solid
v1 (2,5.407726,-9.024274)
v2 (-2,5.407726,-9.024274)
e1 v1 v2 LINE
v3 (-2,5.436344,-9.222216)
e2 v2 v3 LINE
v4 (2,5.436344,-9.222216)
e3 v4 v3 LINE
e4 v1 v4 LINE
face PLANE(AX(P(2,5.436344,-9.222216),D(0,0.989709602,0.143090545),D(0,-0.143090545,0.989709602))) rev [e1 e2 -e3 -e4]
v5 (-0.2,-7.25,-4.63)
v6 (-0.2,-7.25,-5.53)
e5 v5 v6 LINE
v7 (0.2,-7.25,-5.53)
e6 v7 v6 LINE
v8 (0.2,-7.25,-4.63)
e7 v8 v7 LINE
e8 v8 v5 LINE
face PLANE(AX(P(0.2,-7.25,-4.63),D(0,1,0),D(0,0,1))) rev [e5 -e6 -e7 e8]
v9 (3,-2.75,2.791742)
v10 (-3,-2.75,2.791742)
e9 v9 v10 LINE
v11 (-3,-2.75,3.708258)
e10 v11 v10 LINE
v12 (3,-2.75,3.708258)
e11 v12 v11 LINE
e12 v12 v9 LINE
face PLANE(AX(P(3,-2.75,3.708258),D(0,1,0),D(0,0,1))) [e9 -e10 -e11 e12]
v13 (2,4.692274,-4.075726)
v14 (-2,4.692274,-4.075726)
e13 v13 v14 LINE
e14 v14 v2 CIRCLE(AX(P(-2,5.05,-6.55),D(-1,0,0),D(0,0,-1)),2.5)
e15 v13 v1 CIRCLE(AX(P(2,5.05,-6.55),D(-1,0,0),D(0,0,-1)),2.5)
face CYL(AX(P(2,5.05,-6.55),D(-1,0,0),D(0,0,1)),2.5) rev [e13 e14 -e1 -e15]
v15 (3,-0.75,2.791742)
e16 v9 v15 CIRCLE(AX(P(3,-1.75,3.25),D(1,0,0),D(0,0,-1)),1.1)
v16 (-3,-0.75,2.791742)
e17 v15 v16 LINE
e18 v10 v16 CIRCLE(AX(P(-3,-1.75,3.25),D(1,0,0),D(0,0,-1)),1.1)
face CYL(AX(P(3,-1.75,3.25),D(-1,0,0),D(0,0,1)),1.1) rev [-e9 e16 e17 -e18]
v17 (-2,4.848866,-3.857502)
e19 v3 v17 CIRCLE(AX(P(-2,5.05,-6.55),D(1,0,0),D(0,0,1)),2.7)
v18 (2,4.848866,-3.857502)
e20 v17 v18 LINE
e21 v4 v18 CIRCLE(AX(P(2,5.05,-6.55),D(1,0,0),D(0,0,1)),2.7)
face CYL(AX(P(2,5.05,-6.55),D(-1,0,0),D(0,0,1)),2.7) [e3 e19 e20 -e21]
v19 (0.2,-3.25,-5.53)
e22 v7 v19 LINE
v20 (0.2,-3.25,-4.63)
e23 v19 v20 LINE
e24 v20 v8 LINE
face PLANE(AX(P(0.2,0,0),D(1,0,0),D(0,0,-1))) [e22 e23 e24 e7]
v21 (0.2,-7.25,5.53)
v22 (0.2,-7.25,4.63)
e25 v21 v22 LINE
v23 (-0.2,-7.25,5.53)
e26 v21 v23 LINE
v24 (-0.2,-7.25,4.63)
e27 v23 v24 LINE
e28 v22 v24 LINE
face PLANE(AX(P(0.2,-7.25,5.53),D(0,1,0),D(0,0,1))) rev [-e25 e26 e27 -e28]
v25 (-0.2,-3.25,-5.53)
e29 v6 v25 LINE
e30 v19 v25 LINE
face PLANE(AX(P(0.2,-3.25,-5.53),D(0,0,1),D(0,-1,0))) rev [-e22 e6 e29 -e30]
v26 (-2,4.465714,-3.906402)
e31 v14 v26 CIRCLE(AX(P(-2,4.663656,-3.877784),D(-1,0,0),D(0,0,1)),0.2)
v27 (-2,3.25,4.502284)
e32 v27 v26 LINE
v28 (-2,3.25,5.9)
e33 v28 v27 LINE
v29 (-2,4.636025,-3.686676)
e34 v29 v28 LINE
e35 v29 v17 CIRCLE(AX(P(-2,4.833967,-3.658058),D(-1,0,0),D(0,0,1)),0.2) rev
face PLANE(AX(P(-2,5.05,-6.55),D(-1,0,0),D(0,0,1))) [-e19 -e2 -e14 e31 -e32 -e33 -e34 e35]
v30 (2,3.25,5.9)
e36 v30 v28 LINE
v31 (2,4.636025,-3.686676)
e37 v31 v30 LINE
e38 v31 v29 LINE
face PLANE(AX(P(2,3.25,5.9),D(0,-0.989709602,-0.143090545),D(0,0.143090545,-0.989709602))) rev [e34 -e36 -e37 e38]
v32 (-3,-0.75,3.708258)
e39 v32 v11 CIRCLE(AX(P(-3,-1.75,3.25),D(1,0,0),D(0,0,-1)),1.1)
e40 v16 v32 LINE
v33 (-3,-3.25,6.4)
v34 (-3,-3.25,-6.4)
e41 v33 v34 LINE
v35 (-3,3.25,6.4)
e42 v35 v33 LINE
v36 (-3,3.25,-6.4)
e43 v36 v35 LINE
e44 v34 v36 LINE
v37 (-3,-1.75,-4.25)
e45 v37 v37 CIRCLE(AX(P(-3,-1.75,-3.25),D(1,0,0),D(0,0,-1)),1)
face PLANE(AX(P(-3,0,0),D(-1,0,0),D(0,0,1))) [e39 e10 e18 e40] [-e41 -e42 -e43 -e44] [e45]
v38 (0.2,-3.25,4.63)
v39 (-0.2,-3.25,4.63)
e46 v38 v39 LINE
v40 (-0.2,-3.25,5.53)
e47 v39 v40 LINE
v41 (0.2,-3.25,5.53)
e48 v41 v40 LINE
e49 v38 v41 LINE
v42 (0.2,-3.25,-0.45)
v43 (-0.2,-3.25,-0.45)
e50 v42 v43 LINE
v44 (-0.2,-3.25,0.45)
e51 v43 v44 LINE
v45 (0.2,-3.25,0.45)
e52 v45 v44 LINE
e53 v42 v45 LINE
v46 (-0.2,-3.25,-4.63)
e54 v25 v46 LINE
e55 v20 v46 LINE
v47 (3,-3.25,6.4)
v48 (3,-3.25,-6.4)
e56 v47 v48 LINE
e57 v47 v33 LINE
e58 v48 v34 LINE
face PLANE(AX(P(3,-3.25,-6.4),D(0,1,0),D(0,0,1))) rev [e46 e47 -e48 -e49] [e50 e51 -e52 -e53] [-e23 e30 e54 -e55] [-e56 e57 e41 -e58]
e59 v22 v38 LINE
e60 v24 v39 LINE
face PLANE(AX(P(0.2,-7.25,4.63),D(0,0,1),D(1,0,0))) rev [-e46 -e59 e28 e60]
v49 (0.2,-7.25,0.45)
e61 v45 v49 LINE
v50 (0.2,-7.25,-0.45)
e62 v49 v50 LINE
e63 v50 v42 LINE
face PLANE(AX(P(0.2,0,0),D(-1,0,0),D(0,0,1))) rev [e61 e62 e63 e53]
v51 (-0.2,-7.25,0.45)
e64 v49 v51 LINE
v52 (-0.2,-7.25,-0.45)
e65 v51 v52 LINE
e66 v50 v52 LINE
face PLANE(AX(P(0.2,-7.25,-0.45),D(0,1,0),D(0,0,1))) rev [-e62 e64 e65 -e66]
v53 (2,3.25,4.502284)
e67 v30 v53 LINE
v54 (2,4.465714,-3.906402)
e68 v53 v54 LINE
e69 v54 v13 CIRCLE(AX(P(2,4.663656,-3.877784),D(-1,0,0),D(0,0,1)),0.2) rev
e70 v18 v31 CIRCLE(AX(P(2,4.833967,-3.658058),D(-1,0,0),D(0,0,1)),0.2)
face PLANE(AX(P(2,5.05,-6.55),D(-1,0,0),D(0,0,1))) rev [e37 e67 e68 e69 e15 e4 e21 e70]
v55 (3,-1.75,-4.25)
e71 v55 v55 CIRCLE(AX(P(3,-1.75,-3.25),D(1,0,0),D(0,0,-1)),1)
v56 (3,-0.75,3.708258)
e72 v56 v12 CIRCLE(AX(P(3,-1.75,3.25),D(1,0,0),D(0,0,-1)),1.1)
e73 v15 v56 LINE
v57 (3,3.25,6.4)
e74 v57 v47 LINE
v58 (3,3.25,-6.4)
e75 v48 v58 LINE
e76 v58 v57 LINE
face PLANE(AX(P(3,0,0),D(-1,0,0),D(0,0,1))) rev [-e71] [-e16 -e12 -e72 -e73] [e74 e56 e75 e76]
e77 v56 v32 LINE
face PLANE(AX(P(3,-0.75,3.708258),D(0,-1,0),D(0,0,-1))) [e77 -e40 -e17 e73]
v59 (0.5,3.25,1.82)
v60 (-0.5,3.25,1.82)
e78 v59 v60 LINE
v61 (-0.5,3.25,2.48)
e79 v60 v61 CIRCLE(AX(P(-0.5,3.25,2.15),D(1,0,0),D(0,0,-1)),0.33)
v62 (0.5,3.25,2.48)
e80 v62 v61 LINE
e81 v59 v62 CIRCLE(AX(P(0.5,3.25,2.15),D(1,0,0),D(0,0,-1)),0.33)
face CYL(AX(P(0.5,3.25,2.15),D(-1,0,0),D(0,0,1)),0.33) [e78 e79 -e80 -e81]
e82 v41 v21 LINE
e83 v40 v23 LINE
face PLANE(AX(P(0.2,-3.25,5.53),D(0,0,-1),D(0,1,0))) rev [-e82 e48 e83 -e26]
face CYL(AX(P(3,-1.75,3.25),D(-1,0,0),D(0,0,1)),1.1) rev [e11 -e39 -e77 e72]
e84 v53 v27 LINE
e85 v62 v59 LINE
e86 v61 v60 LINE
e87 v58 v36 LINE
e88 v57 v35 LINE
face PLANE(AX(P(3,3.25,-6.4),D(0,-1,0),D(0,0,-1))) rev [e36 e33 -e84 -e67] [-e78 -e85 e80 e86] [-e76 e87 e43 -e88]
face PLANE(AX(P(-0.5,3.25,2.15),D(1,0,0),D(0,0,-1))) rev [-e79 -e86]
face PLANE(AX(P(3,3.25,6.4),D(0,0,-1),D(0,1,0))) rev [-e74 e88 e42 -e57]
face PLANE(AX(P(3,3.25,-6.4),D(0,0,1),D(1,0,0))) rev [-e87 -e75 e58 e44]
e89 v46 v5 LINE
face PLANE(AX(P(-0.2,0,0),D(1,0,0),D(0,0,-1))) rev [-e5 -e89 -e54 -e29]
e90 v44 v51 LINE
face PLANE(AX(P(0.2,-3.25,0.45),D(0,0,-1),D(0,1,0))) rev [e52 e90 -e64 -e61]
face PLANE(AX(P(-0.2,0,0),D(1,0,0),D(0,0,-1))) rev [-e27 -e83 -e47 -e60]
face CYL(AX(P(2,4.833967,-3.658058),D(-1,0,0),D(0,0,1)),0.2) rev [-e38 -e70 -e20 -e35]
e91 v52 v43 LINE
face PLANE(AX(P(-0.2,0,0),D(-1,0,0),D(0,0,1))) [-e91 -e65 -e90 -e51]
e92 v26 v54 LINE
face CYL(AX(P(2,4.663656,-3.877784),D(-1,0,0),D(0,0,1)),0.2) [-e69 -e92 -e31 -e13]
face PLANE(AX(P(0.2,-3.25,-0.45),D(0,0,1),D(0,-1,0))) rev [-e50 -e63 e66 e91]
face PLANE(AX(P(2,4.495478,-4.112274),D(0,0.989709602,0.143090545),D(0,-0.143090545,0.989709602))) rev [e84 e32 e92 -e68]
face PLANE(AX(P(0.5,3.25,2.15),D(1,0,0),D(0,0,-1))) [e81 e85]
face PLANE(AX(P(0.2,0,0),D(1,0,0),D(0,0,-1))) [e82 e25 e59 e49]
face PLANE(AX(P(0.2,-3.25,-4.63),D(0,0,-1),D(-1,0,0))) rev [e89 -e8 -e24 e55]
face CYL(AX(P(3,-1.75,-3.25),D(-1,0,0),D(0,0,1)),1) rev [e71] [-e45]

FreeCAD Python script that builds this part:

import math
import FreeCAD as App
import Part
import Sketcher

V = App.Vector
Q = App.Units.Quantity


def edges_at(feature, points):
    """Names of the edges that pass closest to the given points."""
    edges = feature.Shape.Edges
    near = lambda p: min(range(len(edges)), key=lambda i: edges[i].distToShape(Part.Vertex(*p))[0])
    return sorted({f"Edge{near(p) + 1}" for p in points})


def add_polygon(sketch, points):
    """Adds a closed chain of lines whose ends are joined by coincident constraints."""
    first, n = sketch.GeometryCount, len(points)
    for a, b in zip(points, points[1:] + points[:1]):
        sketch.addGeometry(Part.LineSegment(App.Vector(*a, 0), App.Vector(*b, 0)), False)
    for i in range(n):
        sketch.addConstraint(Sketcher.Constraint("Coincident", first + i, 2, first + (i + 1) % n, 1))

doc = App.newDocument("Part")
params = doc.addObject("Spreadsheet::Sheet", "Params")
for row, (alias, value) in enumerate([
    ("sketch1_diameter", "2 mm"),
    ("sketch1_radius", "1.1 mm"),
    ("sketch1_width", "6.5 mm"),
    ("sketch1_height", "12.8 mm"),
    ("sketch1_width2", "1 mm"),
    ("pad1_length", "6 mm"),
    ("sketch2_width", "4 mm"),
    ("sketch2_height", "0.9 mm"),
    ("pad2_length", "0.4 mm"),
    ("sketch3_radius", "2.5 mm"),
    ("sketch3_radius2", "2.7 mm"),
    ("pad3_length", "4 mm"),
    ("fillet_radius", "0.2 mm"),
    ("sketch4_radius", "0.33 mm"),
    ("pad4_length", "1 mm"),
], start=1):
    params.set(f"A{row}", alias)
    params.set(f"B{row}", "=" + value)
    params.setAlias(f"B{row}", alias)

body = doc.addObject("PartDesign::Body", "Body")

# Sketch on YZ plane
sketch1 = doc.addObject("Sketcher::SketchObject", "Sketch")
body.addObject(sketch1)
sketch1.AttachmentSupport = (doc.YZ_Plane, [""])
sketch1.MapMode = "FlatFace"
add_polygon(sketch1, [(3.25, 6.4), (-3.25, 6.4), (-3.25, -6.4), (3.25, -6.4)])  # lines 0-3
sketch1.addGeometry(Part.ArcOfCircle(Part.Circle(V(-1.75, 3.25, 0), V(0, 0, 1), 1.1), math.radians(24.619977), math.radians(155.380023)), False)  # 4
sketch1.addGeometry(Part.LineSegment(V(-0.75, 3.708258, 0), V(-0.75, 2.791742, 0)), False)  # 5
sketch1.addGeometry(Part.ArcOfCircle(Part.Circle(V(-1.75, 3.25, 0), V(0, 0, 1), 1.1), math.radians(-155.380023), math.radians(-24.619977)), False)  # 6
sketch1.addGeometry(Part.LineSegment(V(-2.75, 2.791742, 0), V(-2.75, 3.708258, 0)), False)  # 7
sketch1.addGeometry(Part.Circle(V(-1.75, -3.25, 0), V(0, 0, 1), 1), False)  # 8
sketch1.addConstraint(Sketcher.Constraint("Coincident", 4, 1, 5, 1))
sketch1.addConstraint(Sketcher.Constraint("Coincident", 5, 2, 6, 2))
sketch1.addConstraint(Sketcher.Constraint("Coincident", 6, 1, 7, 1))
sketch1.addConstraint(Sketcher.Constraint("Coincident", 7, 2, 4, 2))
sketch1.addConstraint(Sketcher.Constraint("Horizontal", 0))
sketch1.addConstraint(Sketcher.Constraint("Vertical", 1))
sketch1.addConstraint(Sketcher.Constraint("Horizontal", 2))
sketch1.addConstraint(Sketcher.Constraint("Vertical", 3))
sketch1.addConstraint(Sketcher.Constraint("Vertical", 5))
sketch1.addConstraint(Sketcher.Constraint("Vertical", 7))
sketch1.addConstraint(Sketcher.Constraint("Coincident", 6, 3, 4, 3))
sketch1.addConstraint(Sketcher.Constraint("Equal", 4, 6))
sketch1.addConstraint(Sketcher.Constraint("Symmetric", 0, 2, 2, 2, -1, 1))
sketch1.addConstraint(Sketcher.Constraint("Symmetric", 4, 3, 8, 3, -1))
sketch1.addConstraint(Sketcher.Constraint("Horizontal", 5, 2, 6, 1))
sketch1.addConstraint(Sketcher.Constraint("Diameter", 8, Q("2 mm")))
sketch1.addConstraint(Sketcher.Constraint("Radius", 4, Q("1.1 mm")))
sketch1.addConstraint(Sketcher.Constraint("DistanceX", 0, 2, 0, 1, Q("6.5 mm")))
sketch1.addConstraint(Sketcher.Constraint("DistanceY", 1, 2, 1, 1, Q("12.8 mm")))
sketch1.addConstraint(Sketcher.Constraint("DistanceX", 8, 3, 2, 2, Q("5 mm")))
sketch1.addConstraint(Sketcher.Constraint("DistanceX", 4, 3, 4, 1, Q("1 mm")))
sketch1.addConstraint(Sketcher.Constraint("DistanceY", 8, 3, 4, 3, Q("6.5 mm")))
sketch1.setExpression("Constraints[19]", "Params.sketch1_diameter")
sketch1.setExpression("Constraints[20]", "Params.sketch1_radius")
sketch1.setExpression("Constraints[21]", "Params.sketch1_width")
sketch1.setExpression("Constraints[22]", "Params.sketch1_height")
sketch1.setExpression("Constraints[24]", "Params.sketch1_width2")
pad1 = doc.addObject("PartDesign::Pad", "Pad")
body.addObject(pad1)
pad1.Profile = sketch1
pad1.setExpression("Length", "Params.pad1_length")
pad1.Midplane = True

# Sketch on YZ plane
sketch2 = doc.addObject("Sketcher::SketchObject", "Sketch001")
body.addObject(sketch2)
sketch2.AttachmentSupport = (doc.YZ_Plane, [""])
sketch2.MapMode = "FlatFace"
add_polygon(sketch2, [(-3.25, 5.53), (-7.25, 5.53), (-7.25, 4.63), (-3.25, 4.63)])  # lines 0-3
add_polygon(sketch2, [(-3.25, 0.45), (-7.25, 0.45), (-7.25, -0.45), (-3.25, -0.45)])  # lines 4-7
add_polygon(sketch2, [(-3.25, -4.63), (-7.25, -4.63), (-7.25, -5.53), (-3.25, -5.53)])  # lines 8-11
sketch2.addConstraint(Sketcher.Constraint("Horizontal", 0))
sketch2.addConstraint(Sketcher.Constraint("Vertical", 1))
sketch2.addConstraint(Sketcher.Constraint("Horizontal", 2))
sketch2.addConstraint(Sketcher.Constraint("Vertical", 3))
sketch2.addConstraint(Sketcher.Constraint("Horizontal", 4))
sketch2.addConstraint(Sketcher.Constraint("Vertical", 5))
sketch2.addConstraint(Sketcher.Constraint("Horizontal", 6))
sketch2.addConstraint(Sketcher.Constraint("Vertical", 7))
sketch2.addConstraint(Sketcher.Constraint("Horizontal", 8))
sketch2.addConstraint(Sketcher.Constraint("Vertical", 9))
sketch2.addConstraint(Sketcher.Constraint("Horizontal", 10))
sketch2.addConstraint(Sketcher.Constraint("Vertical", 11))
sketch2.addConstraint(Sketcher.Constraint("Symmetric", 1, 2, 8, 2, -1))
sketch2.addConstraint(Sketcher.Constraint("Symmetric", 3, 2, 10, 2, -1))
sketch2.addConstraint(Sketcher.Constraint("Vertical", 1, 2, 4, 2))
sketch2.addConstraint(Sketcher.Constraint("Vertical", 3, 2, 6, 2))
sketch2.addConstraint(Sketcher.Constraint("Equal", 3, 5))
sketch2.addConstraint(Sketcher.Constraint("DistanceX", 0, 2, 0, 1, Q("4 mm")))
sketch2.addConstraint(Sketcher.Constraint("DistanceY", 1, 2, 1, 1, Q("0.9 mm")))
sketch2.addConstraint(Sketcher.Constraint("DistanceX", 0, 2, -1, 1, Q("7.25 mm")))
sketch2.addConstraint(Sketcher.Constraint("DistanceY", -1, 1, 0, 2, Q("5.53 mm")))
sketch2.addConstraint(Sketcher.Constraint("DistanceY", -1, 1, 4, 2, Q("0.45 mm")))
sketch2.setExpression("Constraints[29]", "Params.sketch2_width")
sketch2.setExpression("Constraints[30]", "Params.sketch2_height")
pad2 = doc.addObject("PartDesign::Pad", "Pad001")
body.addObject(pad2)
pad2.Profile = sketch2
pad2.setExpression("Length", "Params.pad2_length")
pad2.Midplane = True

# Sketch on YZ plane
sketch3 = doc.addObject("Sketcher::SketchObject", "Sketch002")
body.addObject(sketch3)
sketch3.AttachmentSupport = (doc.YZ_Plane, [""])
sketch3.MapMode = "FlatFace"
sketch3.addGeometry(Part.LineSegment(V(4.663656, -3.877784, 0), V(3.25, 5.9, 0)), False)
sketch3.addGeometry(Part.LineSegment(V(3.25, 5.9, 0), V(3.25, 4.502284, 0)), False)
sketch3.addGeometry(Part.LineSegment(V(3.25, 4.502284, 0), V(4.495478, -4.112274, 0)), False)
sketch3.addGeometry(Part.ArcOfCircle(Part.Circle(V(5.05, -6.55, 0), V(0, 0, 1), 2.5), math.radians(-81.773278), math.radians(102.815288)), False)
sketch3.addGeometry(Part.LineSegment(V(5.407726, -9.024274, 0), V(5.436344, -9.222216, 0)), False)
sketch3.addGeometry(Part.ArcOfCircle(Part.Circle(V(5.05, -6.55, 0), V(0, 0, 1), 2.7), math.radians(-81.773278), math.radians(98.226722)), False)
sketch3.addConstraint(Sketcher.Constraint("Coincident", 0, 2, 1, 1))
sketch3.addConstraint(Sketcher.Constraint("Coincident", 1, 2, 2, 1))
sketch3.addConstraint(Sketcher.Constraint("Coincident", 2, 2, 3, 2))
sketch3.addConstraint(Sketcher.Constraint("Coincident", 3, 1, 4, 1))
sketch3.addConstraint(Sketcher.Constraint("Coincident", 4, 2, 5, 1))
sketch3.addConstraint(Sketcher.Constraint("Coincident", 5, 2, 0, 1))
sketch3.addConstraint(Sketcher.Constraint("Vertical", 1))
sketch3.addConstraint(Sketcher.Constraint("Coincident", 5, 3, 3, 3))
sketch3.addConstraint(Sketcher.Constraint("Parallel", 0, 2))
sketch3.addConstraint(Sketcher.Constraint("Parallel", 2, 4))
sketch3.addConstraint(Sketcher.Constraint("Radius", 3, Q("2.5 mm")))
sketch3.addConstraint(Sketcher.Constraint("Radius", 5, Q("2.7 mm")))
sketch3.addConstraint(Sketcher.Constraint("DistanceY", -1, 1, 0, 2, Q("5.9 mm")))
sketch3.addConstraint(Sketcher.Constraint("DistanceX", 0, 2, 3, 3, Q("1.8 mm")))
sketch3.addConstraint(Sketcher.Constraint("DistanceX", -1, 1, 3, 3, Q("5.05 mm")))
sketch3.addConstraint(Sketcher.Constraint("DistanceY", 3, 3, -1, 1, Q("6.55 mm")))
sketch3.addConstraint(Sketcher.Constraint("DistanceY", 3, 1, 2, 2, Q("4.912 mm")))
sketch3.addConstraint(Sketcher.Constraint("DistanceY", 4, 2, 1, 2, Q("13.7245 mm")))
sketch3.addConstraint(Sketcher.Constraint("DistanceY", 1, 2, 1, 1, Q("1.397716 mm")))
sketch3.setExpression("Constraints[10]", "Params.sketch3_radius")
sketch3.setExpression("Constraints[11]", "Params.sketch3_radius2")
pad3 = doc.addObject("PartDesign::Pad", "Pad002")
body.addObject(pad3)
pad3.Profile = sketch3
pad3.setExpression("Length", "Params.pad3_length")
pad3.Midplane = True
doc.recompute()

fillet = doc.addObject("PartDesign::Fillet", "Fillet")
body.addObject(fillet)
fillet.Base = (pad3, edges_at(pad3, [(0, 4.495, -4.112), (0, 4.664, -3.878)]))
fillet.setExpression("Radius", "Params.fillet_radius")

# Sketch on YZ plane
sketch4 = doc.addObject("Sketcher::SketchObject", "Sketch003")
body.addObject(sketch4)
sketch4.AttachmentSupport = (doc.YZ_Plane, [""])
sketch4.MapMode = "FlatFace"
sketch4.addGeometry(Part.LineSegment(V(3.25, 2.48, 0), V(3.25, 1.82, 0)), False)
sketch4.addGeometry(Part.ArcOfCircle(Part.Circle(V(3.25, 2.15, 0), V(0, 0, 1), 0.33), math.radians(-90), math.radians(90)), False)
sketch4.addConstraint(Sketcher.Constraint("Coincident", 0, 1, 1, 2))
sketch4.addConstraint(Sketcher.Constraint("Coincident", 1, 1, 0, 2))
sketch4.addConstraint(Sketcher.Constraint("Vertical", 0))
sketch4.addConstraint(Sketcher.Constraint("Vertical", 1, 3, 0, 1))
sketch4.addConstraint(Sketcher.Constraint("Radius", 1, Q("0.33 mm")))
sketch4.addConstraint(Sketcher.Constraint("DistanceX", -1, 1, 1, 3, Q("3.25 mm")))
sketch4.addConstraint(Sketcher.Constraint("DistanceY", -1, 1, 1, 3, Q("2.15 mm")))
sketch4.setExpression("Constraints[4]", "Params.sketch4_radius")
pad4 = doc.addObject("PartDesign::Pad", "Pad003")
body.addObject(pad4)
pad4.Profile = sketch4
pad4.setExpression("Length", "Params.pad4_length")
pad4.Midplane = True

doc.recompute()
